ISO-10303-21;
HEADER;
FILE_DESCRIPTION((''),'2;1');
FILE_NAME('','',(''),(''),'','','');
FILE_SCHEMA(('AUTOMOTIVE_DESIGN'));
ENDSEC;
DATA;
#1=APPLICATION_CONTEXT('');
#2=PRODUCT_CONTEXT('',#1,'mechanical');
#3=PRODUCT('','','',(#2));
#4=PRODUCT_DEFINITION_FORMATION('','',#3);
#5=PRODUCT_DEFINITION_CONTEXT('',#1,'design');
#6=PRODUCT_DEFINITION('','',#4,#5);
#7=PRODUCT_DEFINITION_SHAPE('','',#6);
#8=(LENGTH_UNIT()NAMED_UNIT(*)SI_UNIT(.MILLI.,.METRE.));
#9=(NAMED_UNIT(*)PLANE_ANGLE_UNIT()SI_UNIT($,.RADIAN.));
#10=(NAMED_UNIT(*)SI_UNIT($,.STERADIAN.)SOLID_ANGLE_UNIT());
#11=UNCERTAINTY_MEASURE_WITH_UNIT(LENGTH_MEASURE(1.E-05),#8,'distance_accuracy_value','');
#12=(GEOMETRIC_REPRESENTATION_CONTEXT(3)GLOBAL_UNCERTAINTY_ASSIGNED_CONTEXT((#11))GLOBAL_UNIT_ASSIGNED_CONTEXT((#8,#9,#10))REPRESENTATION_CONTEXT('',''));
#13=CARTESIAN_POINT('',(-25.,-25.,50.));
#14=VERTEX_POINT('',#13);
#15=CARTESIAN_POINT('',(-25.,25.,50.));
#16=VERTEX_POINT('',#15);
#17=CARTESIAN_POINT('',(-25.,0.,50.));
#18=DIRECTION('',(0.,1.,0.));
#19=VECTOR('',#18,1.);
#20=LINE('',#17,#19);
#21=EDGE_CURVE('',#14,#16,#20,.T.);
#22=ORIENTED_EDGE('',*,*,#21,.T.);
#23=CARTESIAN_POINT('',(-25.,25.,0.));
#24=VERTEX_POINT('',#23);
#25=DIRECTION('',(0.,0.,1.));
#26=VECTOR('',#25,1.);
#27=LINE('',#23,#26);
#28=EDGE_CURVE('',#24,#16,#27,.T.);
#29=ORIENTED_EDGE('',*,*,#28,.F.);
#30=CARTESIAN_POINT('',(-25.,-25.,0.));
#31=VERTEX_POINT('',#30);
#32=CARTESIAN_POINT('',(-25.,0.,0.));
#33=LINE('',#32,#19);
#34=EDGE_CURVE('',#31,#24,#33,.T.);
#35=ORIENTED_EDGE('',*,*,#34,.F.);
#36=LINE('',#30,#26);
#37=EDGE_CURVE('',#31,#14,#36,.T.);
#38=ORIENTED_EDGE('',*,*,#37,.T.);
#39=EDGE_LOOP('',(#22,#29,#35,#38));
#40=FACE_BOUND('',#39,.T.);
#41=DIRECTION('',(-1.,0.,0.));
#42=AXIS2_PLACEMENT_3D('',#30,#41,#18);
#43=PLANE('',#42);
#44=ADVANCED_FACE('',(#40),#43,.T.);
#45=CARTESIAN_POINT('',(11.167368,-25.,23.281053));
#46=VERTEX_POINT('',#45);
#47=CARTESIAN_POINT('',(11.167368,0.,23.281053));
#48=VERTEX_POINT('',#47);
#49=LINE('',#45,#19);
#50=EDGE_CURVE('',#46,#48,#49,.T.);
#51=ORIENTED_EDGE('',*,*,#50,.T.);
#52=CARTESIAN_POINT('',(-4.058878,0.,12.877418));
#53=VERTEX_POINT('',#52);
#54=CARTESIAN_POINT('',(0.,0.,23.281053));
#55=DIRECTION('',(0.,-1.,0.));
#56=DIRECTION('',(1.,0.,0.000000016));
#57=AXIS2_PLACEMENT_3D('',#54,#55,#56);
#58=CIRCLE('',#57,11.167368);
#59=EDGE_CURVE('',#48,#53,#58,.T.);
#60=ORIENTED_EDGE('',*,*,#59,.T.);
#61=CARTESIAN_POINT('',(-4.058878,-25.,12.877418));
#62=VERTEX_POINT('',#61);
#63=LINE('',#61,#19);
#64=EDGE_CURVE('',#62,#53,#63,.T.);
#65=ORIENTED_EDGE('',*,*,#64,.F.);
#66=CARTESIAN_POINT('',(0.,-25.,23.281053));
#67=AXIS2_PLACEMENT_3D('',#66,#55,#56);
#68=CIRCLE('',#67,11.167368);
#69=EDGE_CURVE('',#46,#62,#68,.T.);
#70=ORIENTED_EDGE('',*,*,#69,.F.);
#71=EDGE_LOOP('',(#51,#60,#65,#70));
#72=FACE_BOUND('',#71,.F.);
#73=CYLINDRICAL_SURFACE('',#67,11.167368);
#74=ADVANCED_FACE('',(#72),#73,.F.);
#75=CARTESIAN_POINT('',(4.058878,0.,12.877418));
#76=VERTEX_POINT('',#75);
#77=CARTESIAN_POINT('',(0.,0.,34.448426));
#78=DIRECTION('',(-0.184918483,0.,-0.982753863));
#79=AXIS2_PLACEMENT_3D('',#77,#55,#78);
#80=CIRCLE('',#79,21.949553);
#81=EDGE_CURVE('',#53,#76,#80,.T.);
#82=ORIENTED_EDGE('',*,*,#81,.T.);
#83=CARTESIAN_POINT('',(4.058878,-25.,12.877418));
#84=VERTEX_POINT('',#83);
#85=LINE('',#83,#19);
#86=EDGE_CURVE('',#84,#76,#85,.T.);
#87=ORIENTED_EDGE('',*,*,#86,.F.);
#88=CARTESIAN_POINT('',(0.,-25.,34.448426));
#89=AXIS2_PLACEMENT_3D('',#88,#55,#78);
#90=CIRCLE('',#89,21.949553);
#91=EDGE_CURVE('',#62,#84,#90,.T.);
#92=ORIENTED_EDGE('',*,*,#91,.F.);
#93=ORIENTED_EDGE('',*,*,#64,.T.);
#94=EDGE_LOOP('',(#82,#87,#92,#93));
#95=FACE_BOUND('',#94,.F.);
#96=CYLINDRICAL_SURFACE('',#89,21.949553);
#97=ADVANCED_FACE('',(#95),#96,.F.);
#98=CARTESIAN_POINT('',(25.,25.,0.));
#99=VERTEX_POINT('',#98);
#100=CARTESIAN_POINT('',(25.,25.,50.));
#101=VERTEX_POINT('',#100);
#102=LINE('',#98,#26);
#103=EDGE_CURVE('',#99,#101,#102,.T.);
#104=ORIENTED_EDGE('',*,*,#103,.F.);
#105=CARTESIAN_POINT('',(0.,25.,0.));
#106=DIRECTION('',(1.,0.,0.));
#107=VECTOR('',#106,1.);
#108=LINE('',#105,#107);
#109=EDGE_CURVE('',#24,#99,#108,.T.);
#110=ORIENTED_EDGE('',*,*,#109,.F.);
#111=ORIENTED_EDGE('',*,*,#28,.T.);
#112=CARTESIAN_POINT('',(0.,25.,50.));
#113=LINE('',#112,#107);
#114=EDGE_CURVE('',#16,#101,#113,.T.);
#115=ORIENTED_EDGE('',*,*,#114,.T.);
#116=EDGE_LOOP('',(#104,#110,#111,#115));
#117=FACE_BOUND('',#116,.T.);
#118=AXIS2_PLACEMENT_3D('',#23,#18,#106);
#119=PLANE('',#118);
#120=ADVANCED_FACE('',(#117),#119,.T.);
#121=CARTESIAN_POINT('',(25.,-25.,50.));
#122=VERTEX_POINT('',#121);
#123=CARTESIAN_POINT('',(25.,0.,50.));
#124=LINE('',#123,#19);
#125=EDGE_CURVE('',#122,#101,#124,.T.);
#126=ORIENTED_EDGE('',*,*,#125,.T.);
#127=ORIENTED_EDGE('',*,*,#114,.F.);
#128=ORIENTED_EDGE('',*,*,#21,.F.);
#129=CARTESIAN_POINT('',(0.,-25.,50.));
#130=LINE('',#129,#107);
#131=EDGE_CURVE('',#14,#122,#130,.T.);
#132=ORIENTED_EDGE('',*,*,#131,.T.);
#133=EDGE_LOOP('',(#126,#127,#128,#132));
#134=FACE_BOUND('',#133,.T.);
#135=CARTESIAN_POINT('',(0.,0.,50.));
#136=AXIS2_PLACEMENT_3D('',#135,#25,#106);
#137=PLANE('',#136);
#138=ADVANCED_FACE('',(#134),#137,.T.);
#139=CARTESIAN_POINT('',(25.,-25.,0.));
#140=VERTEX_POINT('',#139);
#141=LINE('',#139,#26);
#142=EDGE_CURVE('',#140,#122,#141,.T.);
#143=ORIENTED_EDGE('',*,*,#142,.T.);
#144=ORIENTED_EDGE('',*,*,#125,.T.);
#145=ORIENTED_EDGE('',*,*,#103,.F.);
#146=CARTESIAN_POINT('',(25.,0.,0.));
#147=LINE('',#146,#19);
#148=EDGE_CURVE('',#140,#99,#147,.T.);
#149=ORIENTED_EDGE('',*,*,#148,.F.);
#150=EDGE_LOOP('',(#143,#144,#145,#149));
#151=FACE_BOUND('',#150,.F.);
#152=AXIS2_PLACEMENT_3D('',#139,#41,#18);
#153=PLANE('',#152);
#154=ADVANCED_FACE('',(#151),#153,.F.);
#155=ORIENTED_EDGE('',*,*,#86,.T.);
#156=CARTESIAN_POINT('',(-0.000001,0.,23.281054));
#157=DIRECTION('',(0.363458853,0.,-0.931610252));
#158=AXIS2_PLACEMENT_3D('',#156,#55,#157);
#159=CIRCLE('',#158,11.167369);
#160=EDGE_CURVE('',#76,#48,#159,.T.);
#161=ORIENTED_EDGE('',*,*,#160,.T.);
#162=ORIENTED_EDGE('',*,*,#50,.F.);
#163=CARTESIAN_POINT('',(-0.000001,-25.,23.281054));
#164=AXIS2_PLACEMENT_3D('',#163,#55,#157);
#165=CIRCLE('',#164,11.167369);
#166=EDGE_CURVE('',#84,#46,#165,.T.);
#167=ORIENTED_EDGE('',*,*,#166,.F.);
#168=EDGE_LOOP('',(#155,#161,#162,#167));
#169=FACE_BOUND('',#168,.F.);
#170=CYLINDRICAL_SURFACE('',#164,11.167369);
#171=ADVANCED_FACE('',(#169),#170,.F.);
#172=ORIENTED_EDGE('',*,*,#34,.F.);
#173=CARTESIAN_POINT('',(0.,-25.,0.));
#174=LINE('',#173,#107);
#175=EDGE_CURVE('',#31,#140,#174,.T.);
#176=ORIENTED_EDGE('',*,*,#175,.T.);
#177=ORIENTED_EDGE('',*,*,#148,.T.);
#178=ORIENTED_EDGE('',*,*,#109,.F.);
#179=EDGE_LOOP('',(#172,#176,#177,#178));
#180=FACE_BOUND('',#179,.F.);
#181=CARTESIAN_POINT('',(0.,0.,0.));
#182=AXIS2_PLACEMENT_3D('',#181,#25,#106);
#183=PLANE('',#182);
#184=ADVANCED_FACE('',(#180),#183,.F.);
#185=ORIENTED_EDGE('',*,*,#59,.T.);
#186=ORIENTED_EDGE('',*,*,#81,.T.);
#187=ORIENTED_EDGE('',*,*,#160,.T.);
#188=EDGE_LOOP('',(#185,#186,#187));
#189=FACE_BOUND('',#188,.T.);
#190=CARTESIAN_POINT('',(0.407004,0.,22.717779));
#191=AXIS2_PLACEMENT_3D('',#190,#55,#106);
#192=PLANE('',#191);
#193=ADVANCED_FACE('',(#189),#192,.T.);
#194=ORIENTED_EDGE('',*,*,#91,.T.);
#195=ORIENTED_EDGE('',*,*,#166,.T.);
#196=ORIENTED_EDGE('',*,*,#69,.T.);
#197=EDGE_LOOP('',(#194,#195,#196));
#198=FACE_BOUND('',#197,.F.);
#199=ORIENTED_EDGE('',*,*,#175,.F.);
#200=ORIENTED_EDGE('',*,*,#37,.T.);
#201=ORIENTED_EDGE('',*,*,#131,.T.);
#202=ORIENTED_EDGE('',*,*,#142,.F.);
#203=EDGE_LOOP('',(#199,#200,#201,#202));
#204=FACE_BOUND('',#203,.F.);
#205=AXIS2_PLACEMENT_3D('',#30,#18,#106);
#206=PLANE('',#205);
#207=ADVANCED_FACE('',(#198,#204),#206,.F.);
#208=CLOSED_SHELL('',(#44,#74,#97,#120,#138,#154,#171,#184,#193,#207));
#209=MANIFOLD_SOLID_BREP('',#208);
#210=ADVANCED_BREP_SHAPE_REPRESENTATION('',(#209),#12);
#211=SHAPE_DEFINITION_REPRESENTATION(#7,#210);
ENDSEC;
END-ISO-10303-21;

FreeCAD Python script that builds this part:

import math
import FreeCAD as App
import Part
import Sketcher
from FreeCAD import Vector
Q = App.Units.Quantity

doc = App.newDocument("Part")
params = doc.addObject("Spreadsheet::Sheet", "Params")
for row, (alias, value) in enumerate([
    ("sketch1_width", "50 mm"),
    ("pad1_length", "50 mm"),
    ("pocket1_length", "25 mm"),
], start=1):
    params.set(f"A{row}", alias)
    params.set(f"B{row}", "=" + value)
    params.setAlias(f"B{row}", alias)

body = doc.addObject("PartDesign::Body", "Body")

sketch1 = body.newObject("Sketcher::SketchObject", "Sketch")
sketch1.AttachmentSupport = (doc.getObject("XY_Plane"), [""])
sketch1.MapMode = "FlatFace"
sketch1.addGeometry(Part.LineSegment(Vector(-25, 25, 0), Vector(-25, -25, 0)), False)
sketch1.addGeometry(Part.LineSegment(Vector(-25, -25, 0), Vector(25, -25, 0)), False)
sketch1.addGeometry(Part.LineSegment(Vector(25, -25, 0), Vector(25, 25, 0)), False)
sketch1.addGeometry(Part.LineSegment(Vector(25, 25, 0), Vector(-25, 25, 0)), False)
sketch1.addConstraint(Sketcher.Constraint("Coincident", 0, 2, 1, 1))
sketch1.addConstraint(Sketcher.Constraint("Coincident", 1, 2, 2, 1))
sketch1.addConstraint(Sketcher.Constraint("Coincident", 2, 2, 3, 1))
sketch1.addConstraint(Sketcher.Constraint("Coincident", 3, 2, 0, 1))
sketch1.addConstraint(Sketcher.Constraint("Vertical", 0))
sketch1.addConstraint(Sketcher.Constraint("Horizontal", 1))
sketch1.addConstraint(Sketcher.Constraint("Vertical", 2))
sketch1.addConstraint(Sketcher.Constraint("Horizontal", 3))
sketch1.addConstraint(Sketcher.Constraint("Symmetric", 0, 2, 2, 2, -1, 1))
sketch1.addConstraint(Sketcher.Constraint("Equal", 3, 0))
sketch1.addConstraint(Sketcher.Constraint("DistanceX", 1, 1, 1, 2, Q("50 mm")))
sketch1.setExpression("Constraints[10]", "Params.sketch1_width")
pad1 = body.newObject("PartDesign::Pad", "Pad")
pad1.Profile = sketch1
pad1.setExpression("Length", "Params.pad1_length")

sketch2 = body.newObject("Sketcher::SketchObject", "Sketch001")
sketch2.AttachmentSupport = (doc.getObject("XZ_Plane"), [""])
sketch2.MapMode = "FlatFace"
sketch2.AttachmentOffset = App.Placement(Vector(0, 0, 25), App.Rotation())
sketch2.addGeometry(Part.ArcOfCircle(Part.Circle(Vector(-0.000001, 23.281054, 0), Vector(0, 0, 1), 11.167369), math.radians(-68.687231), math.radians(-0.000003)), False)
sketch2.addGeometry(Part.ArcOfCircle(Part.Circle(Vector(0, 23.281053, 0), Vector(0, 0, 1), 11.167368), math.radians(0.000001), math.radians(248.687236)), False)
sketch2.addGeometry(Part.ArcOfCircle(Part.Circle(Vector(0, 34.448426, 0), Vector(0, 0, 1), 21.949553), math.radians(-100.65638), math.radians(-79.34362)), False)
sketch2.addConstraint(Sketcher.Constraint("Tangent", 0, 2, 1, 1))
sketch2.addConstraint(Sketcher.Constraint("Coincident", 1, 2, 2, 1))
sketch2.addConstraint(Sketcher.Constraint("Coincident", 2, 2, 0, 1))
sketch2.addConstraint(Sketcher.Constraint("Equal", 0, 1))
sketch2.addConstraint(Sketcher.Constraint("Symmetric", 1, 2, 2, 2, -2))
sketch2.addConstraint(Sketcher.Constraint("Horizontal", 1, 3, 0, 2))
sketch2.addConstraint(Sketcher.Constraint("Radius", 0, Q("11.167369 mm")))
sketch2.addConstraint(Sketcher.Constraint("Radius", 2, Q("21.949553 mm")))
sketch2.addConstraint(Sketcher.Constraint("DistanceY", -1, 1, 1, 2, Q("12.877418 mm")))
sketch2.addConstraint(Sketcher.Constraint("DistanceX", -1, 1, 2, 2, Q("4.058878 mm")))
pocket1 = body.newObject("PartDesign::Pocket", "Pocket")
pocket1.Profile = sketch2
pocket1.setExpression("Length", "Params.pocket1_length")

doc.recompute()
